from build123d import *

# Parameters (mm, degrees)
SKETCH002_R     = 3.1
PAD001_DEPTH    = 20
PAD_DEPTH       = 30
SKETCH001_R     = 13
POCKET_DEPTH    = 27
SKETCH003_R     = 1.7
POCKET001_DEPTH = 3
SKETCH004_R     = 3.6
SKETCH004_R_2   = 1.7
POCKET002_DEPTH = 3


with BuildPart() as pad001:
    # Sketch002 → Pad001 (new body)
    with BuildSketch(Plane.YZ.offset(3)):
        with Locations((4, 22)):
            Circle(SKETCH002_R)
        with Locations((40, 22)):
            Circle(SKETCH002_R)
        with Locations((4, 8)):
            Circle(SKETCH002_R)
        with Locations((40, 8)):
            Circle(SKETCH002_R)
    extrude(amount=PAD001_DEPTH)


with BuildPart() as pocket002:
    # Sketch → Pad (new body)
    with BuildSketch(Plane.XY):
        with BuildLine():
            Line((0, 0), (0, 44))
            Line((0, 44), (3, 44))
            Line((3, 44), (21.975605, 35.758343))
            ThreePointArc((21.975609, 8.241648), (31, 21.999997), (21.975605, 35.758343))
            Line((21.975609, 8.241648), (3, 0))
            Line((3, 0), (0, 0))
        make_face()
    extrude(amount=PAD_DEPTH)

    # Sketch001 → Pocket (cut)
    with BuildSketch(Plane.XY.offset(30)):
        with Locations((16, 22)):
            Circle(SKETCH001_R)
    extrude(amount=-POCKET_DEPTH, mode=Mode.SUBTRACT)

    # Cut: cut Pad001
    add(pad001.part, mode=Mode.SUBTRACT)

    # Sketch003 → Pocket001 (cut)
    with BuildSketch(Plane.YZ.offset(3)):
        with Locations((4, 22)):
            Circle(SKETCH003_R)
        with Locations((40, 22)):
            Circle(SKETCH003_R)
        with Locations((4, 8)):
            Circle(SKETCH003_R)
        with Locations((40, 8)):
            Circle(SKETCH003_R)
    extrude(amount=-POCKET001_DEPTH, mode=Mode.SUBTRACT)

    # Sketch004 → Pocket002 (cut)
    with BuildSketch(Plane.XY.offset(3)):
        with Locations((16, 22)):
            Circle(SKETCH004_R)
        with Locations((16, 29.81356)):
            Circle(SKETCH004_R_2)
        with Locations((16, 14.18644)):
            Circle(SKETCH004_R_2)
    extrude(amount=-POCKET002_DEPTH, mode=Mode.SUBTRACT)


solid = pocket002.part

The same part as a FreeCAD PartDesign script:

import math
import FreeCAD as App
import Part
import Sketcher

doc = App.newDocument("Part")
params = doc.addObject("Spreadsheet::Sheet", "Params")
for row, (alias, value) in enumerate([
    ("sketch1_diameter", "6.2 mm"),
    ("pad1_length", "20 mm"),
    ("sketch2_radius", "15 mm"),
    ("sketch2_width", "3 mm"),
    ("sketch2_height", "44 mm"),
    ("pad2_length", "30 mm"),
    ("sketch3_diameter", "26 mm"),
    ("pocket1_length", "27 mm"),
    ("sketch4_diameter", "3.4 mm"),
    ("pocket2_length", "3 mm"),
    ("sketch5_diameter", "7.2 mm"),
    ("sketch5_diameter2", "3.4 mm"),
    ("pocket3_length", "3 mm"),
], start=1):
    params.set(f"A{row}", alias)
    params.set(f"B{row}", "=" + value)
    params.setAlias(f"B{row}", alias)

body = doc.addObject("PartDesign::Body", "Body")
body.AllowCompound = True

# Sketch on YZ plane
sketch1 = body.newObject("Sketcher::SketchObject", "Sketch")
sketch1.AttachmentSupport = (doc.getObject("YZ_Plane"), [""])
sketch1.MapMode = "FlatFace"
sketch1.AttachmentOffset = App.Placement(App.Vector(0, 0, 3), App.Rotation())
sketch1.addGeometry(Part.Circle(App.Vector(4, 22, 0), App.Vector(0, 0, 1), 3.1), False)
sketch1.addGeometry(Part.Circle(App.Vector(40, 22, 0), App.Vector(0, 0, 1), 3.1), False)
sketch1.addGeometry(Part.Circle(App.Vector(4, 8, 0), App.Vector(0, 0, 1), 3.1), False)
sketch1.addGeometry(Part.Circle(App.Vector(40, 8, 0), App.Vector(0, 0, 1), 3.1), False)
sketch1.addConstraint(Sketcher.Constraint("Equal", 0, 1))
sketch1.addConstraint(Sketcher.Constraint("Equal", 1, 2))
sketch1.addConstraint(Sketcher.Constraint("Equal", 2, 3))
sketch1.addConstraint(Sketcher.Constraint("Horizontal", 0, 3, 1, 3))
sketch1.addConstraint(Sketcher.Constraint("Horizontal", 2, 3, 3, 3))
sketch1.addConstraint(Sketcher.Constraint("Vertical", 0, 3, 2, 3))
sketch1.addConstraint(Sketcher.Constraint("Vertical", 1, 3, 3, 3))
sketch1.addConstraint(Sketcher.Constraint("Diameter", 0, 6.2))
sketch1.addConstraint(Sketcher.Constraint("DistanceX", -1, 1, 0, 3, 4.0))
sketch1.addConstraint(Sketcher.Constraint("DistanceY", -1, 1, 0, 3, 22.0))
sketch1.addConstraint(Sketcher.Constraint("DistanceX", -1, 1, 1, 3, 40.0))
sketch1.addConstraint(Sketcher.Constraint("DistanceY", -1, 1, 2, 3, 8.0))
sketch1.setExpression("Constraints[7]", "Params.sketch1_diameter")
pad1 = body.newObject("PartDesign::Pad", "Pad")
pad1.Profile = sketch1
pad1.setExpression("Length", "Params.pad1_length")
body2 = doc.addObject("PartDesign::Body", "Body001")

# Sketch on XY plane
sketch2 = body2.newObject("Sketcher::SketchObject", "Sketch001")
sketch2.AttachmentSupport = (doc.getObject("XY_Plane001"), [""])
sketch2.MapMode = "FlatFace"
sketch2.addGeometry(Part.LineSegment(App.Vector(0, 44, 0), App.Vector(0, 0, 0)), False)
sketch2.addGeometry(Part.LineSegment(App.Vector(0, 0, 0), App.Vector(3, 0, 0)), False)
sketch2.addGeometry(Part.LineSegment(App.Vector(3, 0, 0), App.Vector(22, 8.2, 0)), False)
sketch2.addGeometry(Part.ArcOfCircle(Part.Circle(App.Vector(16, 22, 0), App.Vector(0, 0, 1), 15), math.radians(-67), math.radians(67)), False)
sketch2.addGeometry(Part.LineSegment(App.Vector(22, 35.8, 0), App.Vector(3, 44, 0)), False)
sketch2.addGeometry(Part.LineSegment(App.Vector(3, 44, 0), App.Vector(0, 44, 0)), False)
sketch2.addConstraint(Sketcher.Constraint("Coincident", 0, 2, 1, 1))
sketch2.addConstraint(Sketcher.Constraint("Coincident", 1, 2, 2, 1))
sketch2.addConstraint(Sketcher.Constraint("Coincident", 2, 2, 3, 1))
sketch2.addConstraint(Sketcher.Constraint("Coincident", 3, 2, 4, 1))
sketch2.addConstraint(Sketcher.Constraint("Coincident", 4, 2, 5, 1))
sketch2.addConstraint(Sketcher.Constraint("Coincident", 5, 2, 0, 1))
sketch2.addConstraint(Sketcher.Constraint("Vertical", 0))
sketch2.addConstraint(Sketcher.Constraint("Horizontal", 1))
sketch2.addConstraint(Sketcher.Constraint("Horizontal", 5))
sketch2.addConstraint(Sketcher.Constraint("Coincident", 0, 2, -1, 1))
sketch2.addConstraint(Sketcher.Constraint("Vertical", 1, 2, 4, 2))
sketch2.addConstraint(Sketcher.Constraint("Equal", 2, 4))
sketch2.addConstraint(Sketcher.Constraint("Radius", 3, 15.0))
sketch2.addConstraint(Sketcher.Constraint("DistanceX", 1, 1, 1, 2, 3.0))
sketch2.addConstraint(Sketcher.Constraint("DistanceY", 0, 2, 0, 1, 44.0))
sketch2.addConstraint(Sketcher.Constraint("DistanceX", -1, 1, 3, 3, 16.0))
sketch2.addConstraint(Sketcher.Constraint("DistanceX", -1, 1, 2, 2, 21.975609))
sketch2.addConstraint(Sketcher.Constraint("DistanceY", 3, 3, 3, 2, 13.758348))
sketch2.setExpression("Constraints[12]", "Params.sketch2_radius")
sketch2.setExpression("Constraints[13]", "Params.sketch2_width")
sketch2.setExpression("Constraints[14]", "Params.sketch2_height")
pad2 = body2.newObject("PartDesign::Pad", "Pad001")
pad2.Profile = sketch2
pad2.setExpression("Length", "Params.pad2_length")

# Sketch on XY plane
sketch3 = body2.newObject("Sketcher::SketchObject", "Sketch002")
sketch3.AttachmentSupport = (doc.getObject("XY_Plane001"), [""])
sketch3.MapMode = "FlatFace"
sketch3.AttachmentOffset = App.Placement(App.Vector(0, 0, 30), App.Rotation())
sketch3.addGeometry(Part.Circle(App.Vector(16, 22, 0), App.Vector(0, 0, 1), 13), False)
sketch3.addConstraint(Sketcher.Constraint("Diameter", 0, 26.0))
sketch3.addConstraint(Sketcher.Constraint("DistanceX", -1, 1, 0, 3, 16.0))
sketch3.addConstraint(Sketcher.Constraint("DistanceY", -1, 1, 0, 3, 22.0))
sketch3.setExpression("Constraints[0]", "Params.sketch3_diameter")
pocket1 = body2.newObject("PartDesign::Pocket", "Pocket")
pocket1.Profile = sketch3
pocket1.setExpression("Length", "Params.pocket1_length")
doc.recompute()

boolean = body2.newObject("PartDesign::Boolean", "Boolean")
boolean.Type = "Cut"
boolean.addObjects([body])

# Sketch on YZ plane
sketch4 = body2.newObject("Sketcher::SketchObject", "Sketch003")
sketch4.AttachmentSupport = (doc.getObject("YZ_Plane001"), [""])
sketch4.MapMode = "FlatFace"
sketch4.AttachmentOffset = App.Placement(App.Vector(0, 0, 3), App.Rotation())
sketch4.addGeometry(Part.Circle(App.Vector(4, 22, 0), App.Vector(0, 0, 1), 1.7), False)
sketch4.addGeometry(Part.Circle(App.Vector(40, 22, 0), App.Vector(0, 0, 1), 1.7), False)
sketch4.addGeometry(Part.Circle(App.Vector(4, 8, 0), App.Vector(0, 0, 1), 1.7), False)
sketch4.addGeometry(Part.Circle(App.Vector(40, 8, 0), App.Vector(0, 0, 1), 1.7), False)
sketch4.addConstraint(Sketcher.Constraint("Equal", 0, 1))
sketch4.addConstraint(Sketcher.Constraint("Equal", 1, 2))
sketch4.addConstraint(Sketcher.Constraint("Equal", 2, 3))
sketch4.addConstraint(Sketcher.Constraint("Horizontal", 0, 3, 1, 3))
sketch4.addConstraint(Sketcher.Constraint("Horizontal", 2, 3, 3, 3))
sketch4.addConstraint(Sketcher.Constraint("Vertical", 0, 3, 2, 3))
sketch4.addConstraint(Sketcher.Constraint("Vertical", 1, 3, 3, 3))
sketch4.addConstraint(Sketcher.Constraint("Diameter", 0, 3.4))
sketch4.addConstraint(Sketcher.Constraint("DistanceX", -1, 1, 0, 3, 4.0))
sketch4.addConstraint(Sketcher.Constraint("DistanceY", -1, 1, 0, 3, 22.0))
sketch4.addConstraint(Sketcher.Constraint("DistanceX", -1, 1, 1, 3, 40.0))
sketch4.addConstraint(Sketcher.Constraint("DistanceY", -1, 1, 2, 3, 8.0))
sketch4.setExpression("Constraints[7]", "Params.sketch4_diameter")
pocket2 = body2.newObject("PartDesign::Pocket", "Pocket001")
pocket2.Profile = sketch4
pocket2.setExpression("Length", "Params.pocket2_length")

# Sketch on XY plane
sketch5 = body2.newObject("Sketcher::SketchObject", "Sketch004")
sketch5.AttachmentSupport = (doc.getObject("XY_Plane001"), [""])
sketch5.MapMode = "FlatFace"
sketch5.AttachmentOffset = App.Placement(App.Vector(0, 0, 3), App.Rotation())
sketch5.addGeometry(Part.Circle(App.Vector(16, 22, 0), App.Vector(0, 0, 1), 3.6), False)
sketch5.addGeometry(Part.Circle(App.Vector(16, 29.8, 0), App.Vector(0, 0, 1), 1.7), False)
sketch5.addGeometry(Part.Circle(App.Vector(16, 14.2, 0), App.Vector(0, 0, 1), 1.7), False)
sketch5.addConstraint(Sketcher.Constraint("Equal", 1, 2))
sketch5.addConstraint(Sketcher.Constraint("Vertical", 0, 3, 1, 3))
sketch5.addConstraint(Sketcher.Constraint("Vertical", 1, 3, 2, 3))
sketch5.addConstraint(Sketcher.Constraint("Diameter", 0, 7.2))
sketch5.addConstraint(Sketcher.Constraint("Diameter", 1, 3.4))
sketch5.addConstraint(Sketcher.Constraint("DistanceX", -1, 1, 0, 3, 16.0))
sketch5.addConstraint(Sketcher.Constraint("DistanceY", -1, 1, 0, 3, 22.0))
sketch5.addConstraint(Sketcher.Constraint("DistanceY", -1, 1, 1, 3, 29.81356))
sketch5.addConstraint(Sketcher.Constraint("DistanceY", -1, 1, 2, 3, 14.18644))
sketch5.setExpression("Constraints[3]", "Params.sketch5_diameter")
sketch5.setExpression("Constraints[4]", "Params.sketch5_diameter2")
pocket3 = body2.newObject("PartDesign::Pocket", "Pocket002")
pocket3.Profile = sketch5
pocket3.setExpression("Length", "Params.pocket3_length")

doc.recompute()
